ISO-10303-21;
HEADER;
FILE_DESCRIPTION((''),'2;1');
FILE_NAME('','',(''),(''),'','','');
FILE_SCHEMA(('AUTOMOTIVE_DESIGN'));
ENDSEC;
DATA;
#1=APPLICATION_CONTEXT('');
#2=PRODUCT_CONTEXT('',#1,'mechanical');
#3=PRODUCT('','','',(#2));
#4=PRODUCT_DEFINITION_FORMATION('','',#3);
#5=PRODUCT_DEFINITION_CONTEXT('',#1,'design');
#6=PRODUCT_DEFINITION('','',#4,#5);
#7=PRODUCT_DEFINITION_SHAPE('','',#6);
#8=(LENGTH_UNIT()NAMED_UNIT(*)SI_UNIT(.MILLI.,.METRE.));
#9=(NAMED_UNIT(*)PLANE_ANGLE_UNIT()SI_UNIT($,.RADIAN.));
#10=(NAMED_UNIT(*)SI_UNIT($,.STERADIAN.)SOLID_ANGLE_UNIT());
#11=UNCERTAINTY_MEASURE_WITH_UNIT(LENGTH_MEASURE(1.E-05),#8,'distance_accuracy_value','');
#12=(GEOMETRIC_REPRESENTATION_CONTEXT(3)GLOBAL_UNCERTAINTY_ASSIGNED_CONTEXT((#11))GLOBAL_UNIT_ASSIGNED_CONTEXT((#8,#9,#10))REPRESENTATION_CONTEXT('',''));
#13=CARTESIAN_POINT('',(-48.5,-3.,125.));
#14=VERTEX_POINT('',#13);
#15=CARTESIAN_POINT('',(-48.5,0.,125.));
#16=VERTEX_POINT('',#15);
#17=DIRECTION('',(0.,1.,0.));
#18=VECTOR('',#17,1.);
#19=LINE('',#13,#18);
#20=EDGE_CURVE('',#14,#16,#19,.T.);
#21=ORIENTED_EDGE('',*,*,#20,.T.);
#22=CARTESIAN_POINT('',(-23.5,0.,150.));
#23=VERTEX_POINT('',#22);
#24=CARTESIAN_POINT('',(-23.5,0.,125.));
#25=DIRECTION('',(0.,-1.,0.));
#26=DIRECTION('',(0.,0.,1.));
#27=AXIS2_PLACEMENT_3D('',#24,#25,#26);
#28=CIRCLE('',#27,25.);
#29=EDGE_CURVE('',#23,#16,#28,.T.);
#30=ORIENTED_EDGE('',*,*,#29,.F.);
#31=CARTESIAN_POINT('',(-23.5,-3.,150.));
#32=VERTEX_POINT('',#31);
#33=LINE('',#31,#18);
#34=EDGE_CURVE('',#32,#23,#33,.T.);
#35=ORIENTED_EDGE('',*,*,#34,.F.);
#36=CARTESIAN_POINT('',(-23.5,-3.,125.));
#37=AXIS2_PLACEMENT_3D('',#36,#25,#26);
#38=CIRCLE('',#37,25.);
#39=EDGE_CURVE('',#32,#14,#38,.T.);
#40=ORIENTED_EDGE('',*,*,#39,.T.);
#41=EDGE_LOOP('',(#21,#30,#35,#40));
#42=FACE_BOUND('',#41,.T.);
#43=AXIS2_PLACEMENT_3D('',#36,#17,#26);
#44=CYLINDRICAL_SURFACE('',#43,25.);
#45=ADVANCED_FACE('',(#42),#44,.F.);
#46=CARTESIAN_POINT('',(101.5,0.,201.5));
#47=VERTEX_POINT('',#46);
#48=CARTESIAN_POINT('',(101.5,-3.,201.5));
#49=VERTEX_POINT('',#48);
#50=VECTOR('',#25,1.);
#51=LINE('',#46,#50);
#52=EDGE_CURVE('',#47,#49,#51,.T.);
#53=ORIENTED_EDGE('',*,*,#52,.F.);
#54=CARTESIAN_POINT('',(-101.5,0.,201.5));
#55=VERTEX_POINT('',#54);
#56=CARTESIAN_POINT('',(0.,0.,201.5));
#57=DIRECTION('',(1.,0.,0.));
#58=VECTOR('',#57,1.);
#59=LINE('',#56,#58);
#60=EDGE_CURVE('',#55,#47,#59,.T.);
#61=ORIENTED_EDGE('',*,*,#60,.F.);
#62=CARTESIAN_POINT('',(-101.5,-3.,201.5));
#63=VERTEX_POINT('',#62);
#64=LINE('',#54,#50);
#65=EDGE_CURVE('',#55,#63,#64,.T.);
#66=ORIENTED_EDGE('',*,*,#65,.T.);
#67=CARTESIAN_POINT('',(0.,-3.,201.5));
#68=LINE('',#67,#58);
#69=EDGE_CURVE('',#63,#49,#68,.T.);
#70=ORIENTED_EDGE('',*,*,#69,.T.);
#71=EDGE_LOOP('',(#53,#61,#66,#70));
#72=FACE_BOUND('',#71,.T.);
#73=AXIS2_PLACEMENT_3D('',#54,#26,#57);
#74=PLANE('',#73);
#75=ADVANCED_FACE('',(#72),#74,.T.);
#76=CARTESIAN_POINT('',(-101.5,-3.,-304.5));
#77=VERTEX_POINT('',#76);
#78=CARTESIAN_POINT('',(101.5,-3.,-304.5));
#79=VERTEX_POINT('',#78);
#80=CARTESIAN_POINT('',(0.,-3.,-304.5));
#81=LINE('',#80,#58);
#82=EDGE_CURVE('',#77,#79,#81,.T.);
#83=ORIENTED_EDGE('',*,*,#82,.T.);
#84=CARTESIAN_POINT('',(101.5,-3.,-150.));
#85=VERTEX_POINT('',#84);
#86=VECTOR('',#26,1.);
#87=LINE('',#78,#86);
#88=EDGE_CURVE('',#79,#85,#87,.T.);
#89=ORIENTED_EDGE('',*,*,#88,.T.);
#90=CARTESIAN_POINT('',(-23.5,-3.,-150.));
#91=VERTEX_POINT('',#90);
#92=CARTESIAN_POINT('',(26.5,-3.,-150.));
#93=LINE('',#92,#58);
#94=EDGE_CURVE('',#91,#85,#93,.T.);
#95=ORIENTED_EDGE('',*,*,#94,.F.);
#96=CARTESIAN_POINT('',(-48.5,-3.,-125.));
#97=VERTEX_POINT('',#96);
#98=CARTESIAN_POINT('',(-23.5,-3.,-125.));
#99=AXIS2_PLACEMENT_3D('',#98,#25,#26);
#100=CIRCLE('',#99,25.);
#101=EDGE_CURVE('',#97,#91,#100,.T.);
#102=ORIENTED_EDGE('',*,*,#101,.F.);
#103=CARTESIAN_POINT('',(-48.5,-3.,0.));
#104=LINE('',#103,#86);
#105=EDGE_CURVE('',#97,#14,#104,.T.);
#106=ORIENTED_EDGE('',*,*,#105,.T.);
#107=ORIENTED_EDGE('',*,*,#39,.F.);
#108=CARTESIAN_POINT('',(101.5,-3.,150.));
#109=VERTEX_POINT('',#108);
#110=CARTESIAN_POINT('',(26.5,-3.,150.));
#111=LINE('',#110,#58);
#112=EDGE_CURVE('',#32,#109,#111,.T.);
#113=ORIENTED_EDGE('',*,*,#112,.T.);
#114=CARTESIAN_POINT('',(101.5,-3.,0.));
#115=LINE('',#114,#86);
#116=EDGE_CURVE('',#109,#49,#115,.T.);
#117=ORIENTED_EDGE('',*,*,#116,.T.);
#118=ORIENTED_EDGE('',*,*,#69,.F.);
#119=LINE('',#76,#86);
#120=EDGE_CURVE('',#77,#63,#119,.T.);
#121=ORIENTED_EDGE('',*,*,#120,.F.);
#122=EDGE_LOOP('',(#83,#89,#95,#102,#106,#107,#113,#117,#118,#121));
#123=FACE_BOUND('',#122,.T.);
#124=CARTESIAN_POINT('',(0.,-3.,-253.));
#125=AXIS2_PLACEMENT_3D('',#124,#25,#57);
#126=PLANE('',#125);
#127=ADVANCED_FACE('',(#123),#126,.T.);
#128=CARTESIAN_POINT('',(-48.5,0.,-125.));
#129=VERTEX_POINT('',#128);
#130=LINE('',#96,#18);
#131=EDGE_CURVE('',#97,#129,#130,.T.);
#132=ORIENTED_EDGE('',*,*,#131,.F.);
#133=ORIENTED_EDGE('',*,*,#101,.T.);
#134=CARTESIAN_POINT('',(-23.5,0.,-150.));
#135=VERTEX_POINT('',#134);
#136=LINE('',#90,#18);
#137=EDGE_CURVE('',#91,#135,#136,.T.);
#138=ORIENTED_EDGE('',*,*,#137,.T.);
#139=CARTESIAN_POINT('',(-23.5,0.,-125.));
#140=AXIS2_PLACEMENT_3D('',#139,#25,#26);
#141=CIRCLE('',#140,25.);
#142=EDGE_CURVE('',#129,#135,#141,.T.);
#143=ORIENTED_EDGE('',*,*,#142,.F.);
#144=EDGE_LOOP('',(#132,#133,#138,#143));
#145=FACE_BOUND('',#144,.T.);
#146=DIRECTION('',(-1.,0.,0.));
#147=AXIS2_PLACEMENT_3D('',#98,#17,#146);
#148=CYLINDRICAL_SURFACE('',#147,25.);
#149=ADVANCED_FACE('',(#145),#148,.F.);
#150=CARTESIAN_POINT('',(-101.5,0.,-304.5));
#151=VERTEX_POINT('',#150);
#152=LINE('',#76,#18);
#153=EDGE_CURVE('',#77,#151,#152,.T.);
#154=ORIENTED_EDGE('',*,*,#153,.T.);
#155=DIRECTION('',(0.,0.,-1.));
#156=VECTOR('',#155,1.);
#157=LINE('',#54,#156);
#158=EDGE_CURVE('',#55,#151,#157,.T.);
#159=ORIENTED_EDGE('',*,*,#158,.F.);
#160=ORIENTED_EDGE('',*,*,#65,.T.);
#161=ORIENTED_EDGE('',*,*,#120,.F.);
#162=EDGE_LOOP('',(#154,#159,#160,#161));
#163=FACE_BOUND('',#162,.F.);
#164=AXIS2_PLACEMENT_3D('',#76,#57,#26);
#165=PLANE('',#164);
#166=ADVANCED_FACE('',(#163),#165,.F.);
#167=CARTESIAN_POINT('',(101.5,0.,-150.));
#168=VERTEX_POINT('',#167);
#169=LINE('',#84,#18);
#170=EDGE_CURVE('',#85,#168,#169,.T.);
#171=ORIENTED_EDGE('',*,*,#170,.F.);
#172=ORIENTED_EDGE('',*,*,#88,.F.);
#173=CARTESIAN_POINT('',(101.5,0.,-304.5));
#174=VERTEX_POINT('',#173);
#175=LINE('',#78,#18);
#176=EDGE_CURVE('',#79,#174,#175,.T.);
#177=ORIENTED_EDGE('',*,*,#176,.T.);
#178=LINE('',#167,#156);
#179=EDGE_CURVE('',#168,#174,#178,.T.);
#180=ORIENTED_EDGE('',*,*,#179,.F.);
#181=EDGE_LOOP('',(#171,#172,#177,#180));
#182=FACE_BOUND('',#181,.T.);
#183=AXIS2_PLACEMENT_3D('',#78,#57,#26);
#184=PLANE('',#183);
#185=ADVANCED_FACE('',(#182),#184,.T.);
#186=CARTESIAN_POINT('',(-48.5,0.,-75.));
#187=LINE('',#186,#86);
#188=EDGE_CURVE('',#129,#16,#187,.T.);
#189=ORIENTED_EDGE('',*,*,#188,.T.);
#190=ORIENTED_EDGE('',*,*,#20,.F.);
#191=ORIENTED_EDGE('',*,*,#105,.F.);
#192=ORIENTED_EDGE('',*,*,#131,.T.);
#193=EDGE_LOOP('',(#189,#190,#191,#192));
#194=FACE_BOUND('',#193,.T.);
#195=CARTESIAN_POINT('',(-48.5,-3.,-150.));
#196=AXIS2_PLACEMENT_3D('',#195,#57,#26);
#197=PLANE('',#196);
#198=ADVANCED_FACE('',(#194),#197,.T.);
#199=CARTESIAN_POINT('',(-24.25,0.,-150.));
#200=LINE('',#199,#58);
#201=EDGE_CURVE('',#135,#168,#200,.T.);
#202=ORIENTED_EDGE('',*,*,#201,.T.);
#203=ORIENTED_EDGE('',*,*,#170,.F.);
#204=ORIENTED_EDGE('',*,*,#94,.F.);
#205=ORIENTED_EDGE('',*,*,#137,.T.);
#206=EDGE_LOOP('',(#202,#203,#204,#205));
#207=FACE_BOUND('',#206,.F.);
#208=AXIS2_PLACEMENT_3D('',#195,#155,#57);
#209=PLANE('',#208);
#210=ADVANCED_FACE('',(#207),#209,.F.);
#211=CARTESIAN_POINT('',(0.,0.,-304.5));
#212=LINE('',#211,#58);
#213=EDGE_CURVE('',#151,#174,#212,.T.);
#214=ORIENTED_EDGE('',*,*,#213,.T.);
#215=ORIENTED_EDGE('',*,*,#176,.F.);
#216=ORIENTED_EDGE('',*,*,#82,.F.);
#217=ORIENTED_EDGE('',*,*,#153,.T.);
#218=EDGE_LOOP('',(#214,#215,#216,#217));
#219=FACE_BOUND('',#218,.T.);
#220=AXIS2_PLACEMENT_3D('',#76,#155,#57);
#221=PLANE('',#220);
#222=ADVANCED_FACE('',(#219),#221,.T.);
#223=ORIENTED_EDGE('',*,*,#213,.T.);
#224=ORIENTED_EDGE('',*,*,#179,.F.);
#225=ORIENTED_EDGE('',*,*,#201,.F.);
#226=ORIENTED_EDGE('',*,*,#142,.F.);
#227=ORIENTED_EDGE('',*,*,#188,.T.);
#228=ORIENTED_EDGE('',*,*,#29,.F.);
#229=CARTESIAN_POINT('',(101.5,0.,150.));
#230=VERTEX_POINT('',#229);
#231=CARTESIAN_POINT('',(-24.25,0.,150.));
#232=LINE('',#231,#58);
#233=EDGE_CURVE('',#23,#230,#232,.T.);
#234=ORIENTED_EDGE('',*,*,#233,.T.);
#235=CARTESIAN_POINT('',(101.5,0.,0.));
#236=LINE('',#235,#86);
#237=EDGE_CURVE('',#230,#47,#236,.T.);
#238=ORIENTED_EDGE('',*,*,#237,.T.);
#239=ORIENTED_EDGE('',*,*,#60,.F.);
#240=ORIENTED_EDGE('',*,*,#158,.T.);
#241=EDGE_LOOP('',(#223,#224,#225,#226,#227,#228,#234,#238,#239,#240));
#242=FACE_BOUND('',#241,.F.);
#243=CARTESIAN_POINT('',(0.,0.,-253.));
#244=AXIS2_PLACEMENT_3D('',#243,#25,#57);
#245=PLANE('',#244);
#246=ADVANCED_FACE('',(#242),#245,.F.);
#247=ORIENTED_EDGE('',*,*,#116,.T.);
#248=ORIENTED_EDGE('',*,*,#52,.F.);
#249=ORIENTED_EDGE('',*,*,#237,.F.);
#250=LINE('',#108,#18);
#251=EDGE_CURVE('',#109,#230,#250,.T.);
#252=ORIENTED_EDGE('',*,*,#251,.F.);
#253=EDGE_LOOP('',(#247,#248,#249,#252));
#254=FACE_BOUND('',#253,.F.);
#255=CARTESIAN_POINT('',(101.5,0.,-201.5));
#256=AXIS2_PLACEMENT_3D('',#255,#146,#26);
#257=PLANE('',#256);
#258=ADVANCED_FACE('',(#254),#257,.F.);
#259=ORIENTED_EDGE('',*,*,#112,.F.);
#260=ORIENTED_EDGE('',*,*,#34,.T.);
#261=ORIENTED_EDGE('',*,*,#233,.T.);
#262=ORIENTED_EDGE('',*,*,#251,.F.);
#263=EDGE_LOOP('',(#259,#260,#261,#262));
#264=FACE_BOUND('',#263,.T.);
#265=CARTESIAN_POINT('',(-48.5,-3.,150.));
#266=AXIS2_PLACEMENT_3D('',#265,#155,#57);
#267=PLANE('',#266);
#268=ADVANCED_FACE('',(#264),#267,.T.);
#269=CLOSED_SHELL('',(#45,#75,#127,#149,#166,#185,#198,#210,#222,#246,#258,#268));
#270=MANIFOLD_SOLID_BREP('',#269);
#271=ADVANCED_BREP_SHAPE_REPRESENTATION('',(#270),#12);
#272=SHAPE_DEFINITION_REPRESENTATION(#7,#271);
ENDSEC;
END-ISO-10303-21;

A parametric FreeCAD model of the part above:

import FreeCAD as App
import Part
import Sketcher
from FreeCAD import Vector
Q = App.Units.Quantity


def edges_at(feature, points):
    """Names of the edges that pass closest to the given points."""
    edges = feature.Shape.Edges
    near = lambda p: min(range(len(edges)), key=lambda i: edges[i].distToShape(Part.Vertex(*p))[0])
    return sorted({f"Edge{near(p) + 1}" for p in points})

doc = App.newDocument("Part")
body = doc.addObject("PartDesign::Body", "Body")

# Sketch on XZ plane
sketch1 = doc.addObject("Sketcher::SketchObject", "Sketch")
body.addObject(sketch1)
sketch1.AttachmentSupport = (doc.XZ_Plane, [""])
sketch1.MapMode = "FlatFace"
sketch1.addGeometry([
    Part.LineSegment(Vector(-102, 202, 0), Vector(-102, -202, 0)),
    Part.LineSegment(Vector(-102, -202, 0), Vector(102, -202, 0)),
    Part.LineSegment(Vector(102, -202, 0), Vector(102, 202, 0)),
    Part.LineSegment(Vector(102, 202, 0), Vector(-102, 202, 0)),
], False)
sketch1.addConstraint([
    Sketcher.Constraint("Coincident", 0, 2, 1, 1),
    Sketcher.Constraint("Coincident", 1, 2, 2, 1),
    Sketcher.Constraint("Coincident", 2, 2, 3, 1),
    Sketcher.Constraint("Coincident", 3, 2, 0, 1),
    Sketcher.Constraint("Vertical", 0),
    Sketcher.Constraint("Horizontal", 1),
    Sketcher.Constraint("Vertical", 2),
    Sketcher.Constraint("Horizontal", 3),
    Sketcher.Constraint("Symmetric", 0, 2, 2, 2, -1, 1),
    Sketcher.Constraint("DistanceX", 1, 1, 1, 2, Q("203 mm")),
    Sketcher.Constraint("DistanceY", 0, 2, 0, 1, Q("403 mm")),
])
pad1 = doc.addObject("PartDesign::Pad", "Pad")
body.addObject(pad1)
pad1.Profile = sketch1
pad1.Length = 3

# Sketch on XZ plane
sketch2 = doc.addObject("Sketcher::SketchObject", "Sketch001")
body.addObject(sketch2)
sketch2.AttachmentSupport = (doc.XZ_Plane, [""])
sketch2.MapMode = "FlatFace"
sketch2.AttachmentOffset = App.Placement(Vector(0, 0, 3), App.Rotation())
sketch2.addGeometry([
    Part.LineSegment(Vector(-48, 150, 0), Vector(-48, -150, 0)),
    Part.LineSegment(Vector(-48, -150, 0), Vector(102, -150, 0)),
    Part.LineSegment(Vector(102, -150, 0), Vector(102, 150, 0)),
    Part.LineSegment(Vector(102, 150, 0), Vector(-48, 150, 0)),
], False)
sketch2.addConstraint([
    Sketcher.Constraint("Coincident", 0, 2, 1, 1),
    Sketcher.Constraint("Coincident", 1, 2, 2, 1),
    Sketcher.Constraint("Coincident", 2, 2, 3, 1),
    Sketcher.Constraint("Coincident", 3, 2, 0, 1),
    Sketcher.Constraint("Vertical", 0),
    Sketcher.Constraint("Horizontal", 1),
    Sketcher.Constraint("Vertical", 2),
    Sketcher.Constraint("Horizontal", 3),
    Sketcher.Constraint("DistanceX", 1, 1, 1, 2, Q("150 mm")),
    Sketcher.Constraint("DistanceY", 0, 2, 0, 1, Q("300 mm")),
    Sketcher.Constraint("DistanceY", 0, 2, -1, 1, Q("150 mm")),
    Sketcher.Constraint("DistanceX", 0, 2, -1, 1, Q("48.5 mm")),
])
pocket1 = doc.addObject("PartDesign::Pocket", "Pocket")
body.addObject(pocket1)
pocket1.Profile = sketch2
pocket1.Length = 25
doc.recompute()

fillet = doc.addObject("PartDesign::Fillet", "Fillet")
body.addObject(fillet)
fillet.Base = (pocket1, edges_at(pocket1, [(-48.5, -1.5, 150), (-48.5, -1.5, -150)]))
fillet.Radius = 25

# Sketch on XZ plane
sketch3 = doc.addObject("Sketcher::SketchObject", "Sketch002")
body.addObject(sketch3)
sketch3.AttachmentSupport = (doc.XZ_Plane, [""])
sketch3.MapMode = "FlatFace"
sketch3.AttachmentOffset = App.Placement(Vector(0, 0, 3), App.Rotation())
sketch3.addGeometry([
    Part.LineSegment(Vector(-102, -202, 0), Vector(-102, -304, 0)),
    Part.LineSegment(Vector(-102, -304, 0), Vector(102, -304, 0)),
    Part.LineSegment(Vector(102, -304, 0), Vector(102, -202, 0)),
    Part.LineSegment(Vector(102, -202, 0), Vector(-102, -202, 0)),
], False)
sketch3.addConstraint([
    Sketcher.Constraint("Coincident", 0, 2, 1, 1),
    Sketcher.Constraint("Coincident", 1, 2, 2, 1),
    Sketcher.Constraint("Coincident", 2, 2, 3, 1),
    Sketcher.Constraint("Coincident", 3, 2, 0, 1),
    Sketcher.Constraint("Vertical", 0),
    Sketcher.Constraint("Horizontal", 1),
    Sketcher.Constraint("Vertical", 2),
    Sketcher.Constraint("Horizontal", 3),
    Sketcher.Constraint("DistanceX", 1, 1, 1, 2, Q("203 mm")),
    Sketcher.Constraint("DistanceY", 0, 2, 0, 1, Q("103 mm")),
    Sketcher.Constraint("DistanceX", 0, 2, -1, 1, Q("101.5 mm")),
    Sketcher.Constraint("DistanceY", 0, 2, -1, 1, Q("304.5 mm")),
])
pad2 = doc.addObject("PartDesign::Pad", "Pad001")
body.addObject(pad2)
pad2.Profile = sketch3
pad2.Length = 3
pad2.Reversed = True

doc.recompute()
